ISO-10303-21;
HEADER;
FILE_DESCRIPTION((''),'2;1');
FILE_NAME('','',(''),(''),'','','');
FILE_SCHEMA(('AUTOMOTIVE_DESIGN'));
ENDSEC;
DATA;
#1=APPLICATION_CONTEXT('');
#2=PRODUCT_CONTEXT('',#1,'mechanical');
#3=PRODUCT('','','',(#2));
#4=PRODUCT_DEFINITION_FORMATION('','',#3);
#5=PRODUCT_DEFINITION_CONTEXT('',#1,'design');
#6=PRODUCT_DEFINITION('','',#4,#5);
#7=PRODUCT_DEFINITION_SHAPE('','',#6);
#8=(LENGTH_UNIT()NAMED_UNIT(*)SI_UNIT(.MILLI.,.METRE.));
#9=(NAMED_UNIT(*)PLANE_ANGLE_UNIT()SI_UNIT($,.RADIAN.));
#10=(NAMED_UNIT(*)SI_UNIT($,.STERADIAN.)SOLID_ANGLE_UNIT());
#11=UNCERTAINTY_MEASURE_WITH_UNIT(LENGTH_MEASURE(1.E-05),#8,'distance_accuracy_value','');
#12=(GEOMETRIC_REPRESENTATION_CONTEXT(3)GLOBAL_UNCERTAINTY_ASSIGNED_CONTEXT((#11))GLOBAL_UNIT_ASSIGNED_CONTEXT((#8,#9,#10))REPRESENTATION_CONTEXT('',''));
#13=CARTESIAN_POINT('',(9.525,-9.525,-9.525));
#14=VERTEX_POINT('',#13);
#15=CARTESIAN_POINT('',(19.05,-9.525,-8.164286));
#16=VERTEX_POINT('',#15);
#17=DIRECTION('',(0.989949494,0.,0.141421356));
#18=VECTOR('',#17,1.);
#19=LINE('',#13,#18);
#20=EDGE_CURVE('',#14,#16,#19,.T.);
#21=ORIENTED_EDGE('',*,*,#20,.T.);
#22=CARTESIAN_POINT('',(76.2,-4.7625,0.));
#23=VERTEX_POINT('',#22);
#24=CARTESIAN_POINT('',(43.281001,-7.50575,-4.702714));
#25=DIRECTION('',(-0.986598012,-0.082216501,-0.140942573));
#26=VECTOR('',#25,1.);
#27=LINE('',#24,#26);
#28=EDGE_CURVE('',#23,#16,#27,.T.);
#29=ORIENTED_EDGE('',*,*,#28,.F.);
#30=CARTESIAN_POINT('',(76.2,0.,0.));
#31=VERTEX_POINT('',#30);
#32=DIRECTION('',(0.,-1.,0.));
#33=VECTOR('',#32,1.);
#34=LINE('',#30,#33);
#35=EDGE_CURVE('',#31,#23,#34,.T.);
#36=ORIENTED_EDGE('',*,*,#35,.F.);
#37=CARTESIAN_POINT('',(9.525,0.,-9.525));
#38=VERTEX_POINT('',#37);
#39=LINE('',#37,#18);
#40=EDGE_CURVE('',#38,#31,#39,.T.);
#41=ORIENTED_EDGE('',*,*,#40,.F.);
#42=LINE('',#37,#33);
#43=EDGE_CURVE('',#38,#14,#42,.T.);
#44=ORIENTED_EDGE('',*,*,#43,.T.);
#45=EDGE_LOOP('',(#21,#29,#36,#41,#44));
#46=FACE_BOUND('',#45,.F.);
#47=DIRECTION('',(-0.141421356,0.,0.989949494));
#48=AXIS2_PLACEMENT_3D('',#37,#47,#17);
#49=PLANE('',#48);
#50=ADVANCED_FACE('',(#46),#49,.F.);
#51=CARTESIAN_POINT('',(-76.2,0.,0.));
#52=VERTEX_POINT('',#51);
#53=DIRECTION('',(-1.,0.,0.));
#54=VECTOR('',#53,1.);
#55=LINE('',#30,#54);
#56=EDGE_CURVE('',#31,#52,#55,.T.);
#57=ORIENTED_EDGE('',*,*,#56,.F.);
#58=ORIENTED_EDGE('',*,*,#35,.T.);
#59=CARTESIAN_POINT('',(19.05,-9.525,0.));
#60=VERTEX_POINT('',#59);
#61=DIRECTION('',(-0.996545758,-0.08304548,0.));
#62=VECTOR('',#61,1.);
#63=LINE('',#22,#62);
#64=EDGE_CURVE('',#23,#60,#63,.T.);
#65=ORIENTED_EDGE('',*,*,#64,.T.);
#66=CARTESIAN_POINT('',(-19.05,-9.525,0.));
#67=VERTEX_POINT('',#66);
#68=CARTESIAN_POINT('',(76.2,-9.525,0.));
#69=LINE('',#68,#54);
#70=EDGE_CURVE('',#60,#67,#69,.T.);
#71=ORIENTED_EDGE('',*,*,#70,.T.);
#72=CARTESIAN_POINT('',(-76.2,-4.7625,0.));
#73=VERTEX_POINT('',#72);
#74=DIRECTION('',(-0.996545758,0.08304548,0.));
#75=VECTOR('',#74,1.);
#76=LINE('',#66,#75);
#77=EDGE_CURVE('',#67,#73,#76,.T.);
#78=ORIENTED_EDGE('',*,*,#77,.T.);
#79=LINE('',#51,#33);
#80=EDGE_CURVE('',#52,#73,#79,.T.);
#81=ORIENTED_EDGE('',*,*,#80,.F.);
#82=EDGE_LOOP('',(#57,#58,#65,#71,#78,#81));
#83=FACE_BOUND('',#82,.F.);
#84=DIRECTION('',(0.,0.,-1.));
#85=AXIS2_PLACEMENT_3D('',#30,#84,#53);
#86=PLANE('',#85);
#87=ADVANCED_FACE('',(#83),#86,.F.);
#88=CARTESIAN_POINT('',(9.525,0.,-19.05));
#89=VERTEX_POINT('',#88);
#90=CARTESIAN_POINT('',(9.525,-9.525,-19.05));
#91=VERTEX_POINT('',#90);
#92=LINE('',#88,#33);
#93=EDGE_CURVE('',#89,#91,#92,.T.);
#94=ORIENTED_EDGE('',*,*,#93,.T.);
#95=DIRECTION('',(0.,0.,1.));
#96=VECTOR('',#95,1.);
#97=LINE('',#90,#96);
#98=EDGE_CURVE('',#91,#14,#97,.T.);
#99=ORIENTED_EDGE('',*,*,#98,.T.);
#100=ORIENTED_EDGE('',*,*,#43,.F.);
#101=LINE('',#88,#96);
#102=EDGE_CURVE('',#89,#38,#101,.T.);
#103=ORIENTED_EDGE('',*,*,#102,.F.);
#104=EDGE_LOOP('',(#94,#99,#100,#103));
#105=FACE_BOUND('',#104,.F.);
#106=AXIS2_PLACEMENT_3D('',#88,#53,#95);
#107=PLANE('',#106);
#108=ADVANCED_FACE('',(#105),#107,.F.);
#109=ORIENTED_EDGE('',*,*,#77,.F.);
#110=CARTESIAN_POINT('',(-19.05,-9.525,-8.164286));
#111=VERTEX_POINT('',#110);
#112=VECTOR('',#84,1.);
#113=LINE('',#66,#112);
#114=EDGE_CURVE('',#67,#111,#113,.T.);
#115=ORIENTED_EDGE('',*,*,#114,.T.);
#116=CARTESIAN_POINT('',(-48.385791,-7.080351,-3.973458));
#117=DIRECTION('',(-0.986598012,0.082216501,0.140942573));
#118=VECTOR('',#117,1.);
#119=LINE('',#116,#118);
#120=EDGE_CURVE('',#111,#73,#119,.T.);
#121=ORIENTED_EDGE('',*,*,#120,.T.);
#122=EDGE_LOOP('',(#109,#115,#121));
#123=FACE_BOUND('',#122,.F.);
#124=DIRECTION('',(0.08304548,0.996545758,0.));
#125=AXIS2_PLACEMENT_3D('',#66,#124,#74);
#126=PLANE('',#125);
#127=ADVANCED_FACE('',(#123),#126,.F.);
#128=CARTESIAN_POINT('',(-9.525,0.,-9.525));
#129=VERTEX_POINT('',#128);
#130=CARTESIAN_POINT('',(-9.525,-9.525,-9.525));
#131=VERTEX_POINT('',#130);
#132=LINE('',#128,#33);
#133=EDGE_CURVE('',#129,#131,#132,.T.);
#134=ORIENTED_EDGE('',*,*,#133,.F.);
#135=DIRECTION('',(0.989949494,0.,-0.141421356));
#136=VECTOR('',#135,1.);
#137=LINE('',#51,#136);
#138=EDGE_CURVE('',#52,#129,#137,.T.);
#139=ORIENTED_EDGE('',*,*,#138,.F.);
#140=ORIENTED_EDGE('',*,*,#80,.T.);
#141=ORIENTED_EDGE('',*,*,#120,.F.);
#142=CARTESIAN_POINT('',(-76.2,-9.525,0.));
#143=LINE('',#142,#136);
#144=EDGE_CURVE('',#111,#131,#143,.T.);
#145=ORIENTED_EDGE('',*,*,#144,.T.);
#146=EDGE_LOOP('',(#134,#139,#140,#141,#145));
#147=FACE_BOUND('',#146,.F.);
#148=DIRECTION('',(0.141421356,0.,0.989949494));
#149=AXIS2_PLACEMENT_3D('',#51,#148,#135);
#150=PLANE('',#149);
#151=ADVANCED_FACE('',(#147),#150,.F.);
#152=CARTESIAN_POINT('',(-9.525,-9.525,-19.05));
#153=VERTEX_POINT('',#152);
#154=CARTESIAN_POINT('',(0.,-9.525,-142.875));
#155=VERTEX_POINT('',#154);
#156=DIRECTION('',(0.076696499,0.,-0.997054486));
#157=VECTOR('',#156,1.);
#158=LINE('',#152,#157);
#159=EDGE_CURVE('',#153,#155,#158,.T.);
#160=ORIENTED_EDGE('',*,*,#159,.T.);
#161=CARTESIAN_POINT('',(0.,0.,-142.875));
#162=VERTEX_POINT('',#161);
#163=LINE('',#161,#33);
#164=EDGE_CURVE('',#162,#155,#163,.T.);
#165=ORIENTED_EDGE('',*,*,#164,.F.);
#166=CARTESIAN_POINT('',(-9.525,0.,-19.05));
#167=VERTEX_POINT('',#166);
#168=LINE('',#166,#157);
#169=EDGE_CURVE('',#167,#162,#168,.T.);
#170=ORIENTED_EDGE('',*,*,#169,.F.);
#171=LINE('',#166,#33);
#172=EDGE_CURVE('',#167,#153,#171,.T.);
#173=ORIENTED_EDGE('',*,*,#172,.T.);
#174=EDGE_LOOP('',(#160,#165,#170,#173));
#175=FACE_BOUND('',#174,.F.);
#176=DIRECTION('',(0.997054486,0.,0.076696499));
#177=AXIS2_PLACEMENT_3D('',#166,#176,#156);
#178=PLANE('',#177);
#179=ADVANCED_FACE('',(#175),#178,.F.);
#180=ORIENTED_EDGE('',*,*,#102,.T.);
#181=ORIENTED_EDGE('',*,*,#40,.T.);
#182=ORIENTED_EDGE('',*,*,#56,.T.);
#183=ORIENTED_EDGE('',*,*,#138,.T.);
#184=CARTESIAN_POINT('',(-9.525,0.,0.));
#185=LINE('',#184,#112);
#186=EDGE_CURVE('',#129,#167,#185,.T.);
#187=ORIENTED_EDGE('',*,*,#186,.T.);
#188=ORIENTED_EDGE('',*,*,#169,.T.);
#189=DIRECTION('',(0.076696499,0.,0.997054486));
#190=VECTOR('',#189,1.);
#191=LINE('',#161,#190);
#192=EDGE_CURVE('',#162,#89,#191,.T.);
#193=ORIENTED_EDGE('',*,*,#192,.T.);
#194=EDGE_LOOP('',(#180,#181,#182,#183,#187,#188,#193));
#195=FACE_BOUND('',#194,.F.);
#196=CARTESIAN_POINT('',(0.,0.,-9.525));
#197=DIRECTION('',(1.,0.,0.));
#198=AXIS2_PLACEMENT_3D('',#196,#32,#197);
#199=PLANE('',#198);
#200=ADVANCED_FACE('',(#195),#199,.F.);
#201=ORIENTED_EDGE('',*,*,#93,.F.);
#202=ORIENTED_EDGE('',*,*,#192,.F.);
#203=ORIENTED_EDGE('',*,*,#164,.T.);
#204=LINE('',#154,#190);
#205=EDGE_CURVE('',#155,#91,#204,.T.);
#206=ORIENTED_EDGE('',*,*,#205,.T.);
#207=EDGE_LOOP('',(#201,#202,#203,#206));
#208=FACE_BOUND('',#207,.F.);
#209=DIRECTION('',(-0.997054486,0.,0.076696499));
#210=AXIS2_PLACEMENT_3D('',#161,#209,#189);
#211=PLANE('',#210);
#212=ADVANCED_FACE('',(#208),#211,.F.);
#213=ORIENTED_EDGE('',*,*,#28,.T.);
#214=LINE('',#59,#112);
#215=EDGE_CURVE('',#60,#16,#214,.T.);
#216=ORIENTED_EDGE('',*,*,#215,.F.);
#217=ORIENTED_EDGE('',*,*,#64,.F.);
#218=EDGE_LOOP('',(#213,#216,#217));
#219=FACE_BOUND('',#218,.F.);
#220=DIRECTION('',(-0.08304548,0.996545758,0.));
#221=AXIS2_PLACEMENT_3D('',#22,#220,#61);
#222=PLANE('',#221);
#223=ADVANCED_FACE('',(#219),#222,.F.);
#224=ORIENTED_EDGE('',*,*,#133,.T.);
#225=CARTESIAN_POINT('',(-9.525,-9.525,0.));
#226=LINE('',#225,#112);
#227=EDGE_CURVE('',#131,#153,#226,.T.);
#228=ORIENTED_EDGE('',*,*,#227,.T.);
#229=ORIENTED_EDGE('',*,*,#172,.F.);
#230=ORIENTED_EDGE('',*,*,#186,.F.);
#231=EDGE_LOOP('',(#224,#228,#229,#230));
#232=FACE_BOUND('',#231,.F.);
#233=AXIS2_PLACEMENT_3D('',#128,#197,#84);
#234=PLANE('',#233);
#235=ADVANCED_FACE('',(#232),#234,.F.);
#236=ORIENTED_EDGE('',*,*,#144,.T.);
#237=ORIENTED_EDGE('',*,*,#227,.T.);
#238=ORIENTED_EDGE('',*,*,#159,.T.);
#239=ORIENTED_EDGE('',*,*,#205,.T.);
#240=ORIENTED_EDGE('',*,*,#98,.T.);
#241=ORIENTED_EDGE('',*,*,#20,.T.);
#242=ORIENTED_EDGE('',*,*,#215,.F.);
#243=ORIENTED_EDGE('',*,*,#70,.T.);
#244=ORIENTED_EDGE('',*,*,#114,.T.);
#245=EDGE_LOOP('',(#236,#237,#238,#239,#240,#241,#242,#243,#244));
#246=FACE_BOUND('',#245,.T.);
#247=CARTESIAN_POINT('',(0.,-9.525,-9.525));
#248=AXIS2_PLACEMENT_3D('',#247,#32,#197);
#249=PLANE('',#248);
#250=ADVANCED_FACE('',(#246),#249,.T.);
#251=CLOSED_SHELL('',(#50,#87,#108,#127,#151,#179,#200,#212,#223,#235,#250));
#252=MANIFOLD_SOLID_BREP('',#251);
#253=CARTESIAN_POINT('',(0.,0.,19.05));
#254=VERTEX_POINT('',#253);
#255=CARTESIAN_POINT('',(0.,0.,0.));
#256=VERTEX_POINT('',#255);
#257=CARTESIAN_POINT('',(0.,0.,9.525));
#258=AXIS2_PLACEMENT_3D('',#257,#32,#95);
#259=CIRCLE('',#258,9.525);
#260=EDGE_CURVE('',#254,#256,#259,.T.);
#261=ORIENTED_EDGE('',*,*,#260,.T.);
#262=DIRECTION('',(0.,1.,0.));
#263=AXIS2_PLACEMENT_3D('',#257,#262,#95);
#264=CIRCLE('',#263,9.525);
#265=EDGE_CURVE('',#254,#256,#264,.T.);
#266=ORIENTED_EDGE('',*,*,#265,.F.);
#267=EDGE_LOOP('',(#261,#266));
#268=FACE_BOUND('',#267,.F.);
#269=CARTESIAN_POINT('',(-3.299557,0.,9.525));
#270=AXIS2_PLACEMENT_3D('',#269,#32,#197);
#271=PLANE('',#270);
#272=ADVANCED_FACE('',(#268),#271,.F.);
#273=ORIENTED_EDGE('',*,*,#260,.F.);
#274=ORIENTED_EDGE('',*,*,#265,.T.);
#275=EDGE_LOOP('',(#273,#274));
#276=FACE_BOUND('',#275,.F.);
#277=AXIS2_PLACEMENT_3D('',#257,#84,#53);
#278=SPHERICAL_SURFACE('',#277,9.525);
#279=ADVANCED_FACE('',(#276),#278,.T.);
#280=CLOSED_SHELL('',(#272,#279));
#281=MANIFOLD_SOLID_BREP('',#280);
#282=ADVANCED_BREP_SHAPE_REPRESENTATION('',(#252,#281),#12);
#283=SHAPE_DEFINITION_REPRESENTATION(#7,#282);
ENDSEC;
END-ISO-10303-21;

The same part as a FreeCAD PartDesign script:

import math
import FreeCAD as App
import Part
import Sketcher

V = App.Vector
Q = App.Units.Quantity


def add_polygon(sketch, points):
    """Adds a closed chain of lines whose ends are joined by coincident constraints."""
    first, n = sketch.GeometryCount, len(points)
    for a, b in zip(points, points[1:] + points[:1]):
        sketch.addGeometry(Part.LineSegment(App.Vector(*a, 0), App.Vector(*b, 0)), False)
    for i in range(n):
        sketch.addConstraint(Sketcher.Constraint("Coincident", first + i, 2, first + (i + 1) % n, 1))

doc = App.newDocument("Part")
params = doc.addObject("Spreadsheet::Sheet", "Params")
for row, (alias, value) in enumerate([
    ("sketch1_width", "6 in"),
    ("sketch1_height", "0.375 in"),
    ("pad1_length", "0.375 in"),
    ("sketch2_width", "2.25 in"),
    ("sketch2_height", "0.1875 in"),
    ("sketch3_radius", "0.375 in"),
    ("revolution_angle", "180 deg"),
], start=1):
    params.set(f"A{row}", alias)
    params.set(f"B{row}", "=" + value)
    params.setAlias(f"B{row}", alias)

body = doc.addObject("PartDesign::Body", "Body")

# Sketch on XZ plane
sketch1 = body.newObject("Sketcher::SketchObject", "Sketch")
sketch1.AttachmentSupport = (doc.getObject("XZ_Plane"), [""])
sketch1.MapMode = "FlatFace"
add_polygon(sketch1, [(10, -19), (10, -10), (76, 0), (-76, 0), (-10, -10), (-10, -19), (0, -143)])  # lines 0-6
sketch1.addConstraint([
    Sketcher.Constraint("Vertical", 0),
    Sketcher.Constraint("Horizontal", 2),
    Sketcher.Constraint("Vertical", 4),
    Sketcher.Constraint("Symmetric", 1, 2, 2, 2, -1, 1),
    Sketcher.Constraint("Symmetric", 0, 2, 3, 2, -2),
    Sketcher.Constraint("PointOnObject", 5, 2, -2),
    Sketcher.Constraint("Horizontal", 4, 2, 6, 2),
    Sketcher.Constraint("DistanceX", 2, 2, 2, 1, Q("6 in")),
    Sketcher.Constraint("DistanceY", 0, 1, 0, 2, Q("0.375 in")),
    Sketcher.Constraint("DistanceY", 4, 2, -1, 1, Q("0.75 in")),
    Sketcher.Constraint("DistanceX", 3, 2, 0, 2, Q("0.75 in")),
    Sketcher.Constraint("DistanceY", 5, 2, 0, 2, Q("5.25 in")),
])
sketch1.setExpression("Constraints[14]", "Params.sketch1_width")
sketch1.setExpression("Constraints[15]", "Params.sketch1_height")
pad1 = body.newObject("PartDesign::Pad", "Pad")
pad1.Profile = sketch1
pad1.setExpression("Length", "Params.pad1_length")

# Sketch on XY plane
sketch2 = body.newObject("Sketcher::SketchObject", "Sketch001")
sketch2.AttachmentSupport = (doc.getObject("XY_Plane"), [""])
sketch2.MapMode = "FlatFace"
add_polygon(sketch2, [(-76.2, -4.8), (-76.2, -9.5), (-19.1, -9.5)])  # lines 0-2
add_polygon(sketch2, [(76.2, -4.8), (19.1, -9.5), (76.2, -9.5)])  # lines 3-5
sketch2.addConstraint([
    Sketcher.Constraint("Vertical", 0),
    Sketcher.Constraint("Horizontal", 1),
    Sketcher.Constraint("Horizontal", 4),
    Sketcher.Constraint("Vertical", 5),
    Sketcher.Constraint("Symmetric", 1, 2, 3, 2, -2),
    Sketcher.Constraint("Symmetric", 2, 2, 5, 2, -2),
    Sketcher.Constraint("DistanceX", 0, 2, -1, 1, Q("3 in")),
    Sketcher.Constraint("DistanceX", 1, 1, 1, 2, Q("2.25 in")),
    Sketcher.Constraint("DistanceY", 0, 2, 0, 1, Q("0.1875 in")),
    Sketcher.Constraint("DistanceY", 0, 2, -1, 1, Q("0.375 in")),
])
sketch2.setExpression("Constraints[13]", "Params.sketch2_width")
sketch2.setExpression("Constraints[14]", "Params.sketch2_height")
pocket1 = body.newObject("PartDesign::Pocket", "Pocket")
pocket1.Profile = sketch2
pocket1.Type = "ThroughAll"
body2 = doc.addObject("PartDesign::Body", "Body001")

# Sketch on XZ plane
sketch3 = body2.newObject("Sketcher::SketchObject", "Sketch002")
sketch3.AttachmentSupport = (doc.getObject("XZ_Plane001"), [""])
sketch3.MapMode = "FlatFace"
sketch3.addGeometry([
    Part.ArcOfCircle(Part.Circle(V(0, 10, 0), V(0, 0, 1), 10), math.radians(90), math.radians(270)),
    Part.LineSegment(V(0, 0, 0), V(0, 19, 0)),
], False)
sketch3.addConstraint([
    Sketcher.Constraint("Coincident", 0, 1, 1, 2),
    Sketcher.Constraint("Coincident", 1, 1, 0, 2),
    Sketcher.Constraint("Vertical", 1),
    Sketcher.Constraint("Coincident", 1, 1, -1, 1),
    Sketcher.Constraint("PointOnObject", 0, 3, -2),
    Sketcher.Constraint("Radius", 0, Q("0.375 in")),
])
sketch3.setExpression("Constraints[5]", "Params.sketch3_radius")
revolution = body2.newObject("PartDesign::Revolution", "Revolution")
revolution.Profile = sketch3
revolution.ReferenceAxis = (sketch3, ["V_Axis"])
revolution.setExpression("Angle", "Params.revolution_angle")

doc.recompute()
